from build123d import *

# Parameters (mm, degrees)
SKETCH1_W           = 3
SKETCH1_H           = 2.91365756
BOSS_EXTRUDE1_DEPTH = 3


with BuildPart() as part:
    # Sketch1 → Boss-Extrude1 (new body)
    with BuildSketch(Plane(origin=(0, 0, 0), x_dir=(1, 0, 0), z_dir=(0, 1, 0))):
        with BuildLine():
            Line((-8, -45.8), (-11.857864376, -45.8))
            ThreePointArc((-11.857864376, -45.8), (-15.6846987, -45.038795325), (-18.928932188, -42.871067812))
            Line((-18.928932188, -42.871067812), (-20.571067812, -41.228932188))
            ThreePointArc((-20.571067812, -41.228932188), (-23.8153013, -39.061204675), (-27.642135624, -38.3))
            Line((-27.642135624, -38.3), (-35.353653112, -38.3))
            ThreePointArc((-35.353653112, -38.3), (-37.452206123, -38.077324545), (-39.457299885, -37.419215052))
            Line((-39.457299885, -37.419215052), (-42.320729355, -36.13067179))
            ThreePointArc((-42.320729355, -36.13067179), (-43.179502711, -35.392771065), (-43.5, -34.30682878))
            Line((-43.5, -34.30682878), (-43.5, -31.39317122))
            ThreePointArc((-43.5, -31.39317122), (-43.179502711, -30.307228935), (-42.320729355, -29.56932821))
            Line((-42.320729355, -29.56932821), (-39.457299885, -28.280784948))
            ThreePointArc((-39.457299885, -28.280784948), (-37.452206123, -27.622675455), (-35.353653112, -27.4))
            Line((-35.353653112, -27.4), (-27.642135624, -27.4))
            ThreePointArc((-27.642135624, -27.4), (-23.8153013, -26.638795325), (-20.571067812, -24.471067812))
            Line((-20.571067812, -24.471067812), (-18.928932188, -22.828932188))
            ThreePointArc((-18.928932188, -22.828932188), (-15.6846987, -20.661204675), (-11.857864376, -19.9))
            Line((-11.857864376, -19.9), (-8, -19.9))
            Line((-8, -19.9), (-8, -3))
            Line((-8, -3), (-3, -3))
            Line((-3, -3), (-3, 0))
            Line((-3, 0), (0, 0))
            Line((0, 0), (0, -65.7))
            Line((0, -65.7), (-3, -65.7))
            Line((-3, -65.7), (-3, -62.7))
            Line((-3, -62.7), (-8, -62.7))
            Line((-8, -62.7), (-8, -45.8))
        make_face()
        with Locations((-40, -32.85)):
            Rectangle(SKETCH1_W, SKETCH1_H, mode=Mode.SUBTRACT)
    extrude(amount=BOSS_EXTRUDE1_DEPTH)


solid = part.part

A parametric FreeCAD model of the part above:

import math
import FreeCAD as App
import Part
import Sketcher
Q = App.Units.Quantity


def add_polygon(sketch, points):
    """Adds a closed chain of lines whose ends are joined by coincident constraints."""
    first, n = sketch.GeometryCount, len(points)
    for a, b in zip(points, points[1:] + points[:1]):
        sketch.addGeometry(Part.LineSegment(App.Vector(*a, 0), App.Vector(*b, 0)), False)
    for i in range(n):
        sketch.addConstraint(Sketcher.Constraint("Coincident", first + i, 2, first + (i + 1) % n, 1))

doc = App.newDocument("Part")
body = doc.addObject("PartDesign::Body", "Body")

# Sketch on XZ plane
sketch1 = doc.addObject("Sketcher::SketchObject", "Sketch")
body.addObject(sketch1)
sketch1.AttachmentSupport = (doc.XZ_Plane, [""])
sketch1.MapMode = "FlatFace"
sketch1.addGeometry(Part.LineSegment(App.Vector(-11.857864, 45.8, 0), App.Vector(-8, 45.8, 0)), False)  # 0
sketch1.addGeometry(Part.LineSegment(App.Vector(-8, 45.8, 0), App.Vector(-8, 62.7, 0)), False)  # 1
sketch1.addGeometry(Part.LineSegment(App.Vector(-8, 62.7, 0), App.Vector(-3, 62.7, 0)), False)  # 2
sketch1.addGeometry(Part.LineSegment(App.Vector(-3, 62.7, 0), App.Vector(-3, 65.7, 0)), False)  # 3
sketch1.addGeometry(Part.LineSegment(App.Vector(-3, 65.7, 0), App.Vector(0, 65.7, 0)), False)  # 4
sketch1.addGeometry(Part.LineSegment(App.Vector(0, 65.7, 0), App.Vector(0, 0, 0)), False)  # 5
sketch1.addGeometry(Part.LineSegment(App.Vector(0, 0, 0), App.Vector(-3, 0, 0)), False)  # 6
sketch1.addGeometry(Part.LineSegment(App.Vector(-3, 0, 0), App.Vector(-3, 3, 0)), False)  # 7
sketch1.addGeometry(Part.LineSegment(App.Vector(-3, 3, 0), App.Vector(-8, 3, 0)), False)  # 8
sketch1.addGeometry(Part.LineSegment(App.Vector(-8, 3, 0), App.Vector(-8, 19.9, 0)), False)  # 9
sketch1.addGeometry(Part.LineSegment(App.Vector(-8, 19.9, 0), App.Vector(-11.857864, 19.9, 0)), False)  # 10
sketch1.addGeometry(Part.ArcOfCircle(Part.Circle(App.Vector(-11.857864, 29.9, 0), App.Vector(0, 0, 1), 10), math.radians(-135), math.radians(-90)), False)  # 11
sketch1.addGeometry(Part.LineSegment(App.Vector(-18.928932, 22.828932, 0), App.Vector(-20.571068, 24.471068, 0)), False)  # 12
sketch1.addGeometry(Part.ArcOfCircle(Part.Circle(App.Vector(-27.642136, 17.4, 0), App.Vector(0, 0, 1), 10), math.radians(45), math.radians(90)), False)  # 13
sketch1.addGeometry(Part.LineSegment(App.Vector(-27.642136, 27.4, 0), App.Vector(-35.353653, 27.4, 0)), False)  # 14
sketch1.addGeometry(Part.ArcOfCircle(Part.Circle(App.Vector(-35.353653, 37.4, 0), App.Vector(0, 0, 1), 10), math.radians(-114.227745), math.radians(-90)), False)  # 15
sketch1.addGeometry(Part.LineSegment(App.Vector(-39.4573, 28.280785, 0), App.Vector(-42.320729, 29.569328, 0)), False)  # 16
sketch1.addGeometry(Part.ArcOfCircle(Part.Circle(App.Vector(-41.5, 31.393171, 0), App.Vector(0, 0, 1), 2), math.radians(180), math.radians(245.772255)), False)  # 17
sketch1.addGeometry(Part.LineSegment(App.Vector(-43.5, 31.393171, 0), App.Vector(-43.5, 34.306829, 0)), False)  # 18
sketch1.addGeometry(Part.ArcOfCircle(Part.Circle(App.Vector(-41.5, 34.306829, 0), App.Vector(0, 0, 1), 2), math.radians(114.227745), math.radians(180)), False)  # 19
sketch1.addGeometry(Part.LineSegment(App.Vector(-42.320729, 36.130672, 0), App.Vector(-39.4573, 37.419215, 0)), False)  # 20
sketch1.addGeometry(Part.ArcOfCircle(Part.Circle(App.Vector(-35.353653, 28.3, 0), App.Vector(0, 0, 1), 10), math.radians(90), math.radians(114.227745)), False)  # 21
sketch1.addGeometry(Part.LineSegment(App.Vector(-35.353653, 38.3, 0), App.Vector(-27.642136, 38.3, 0)), False)  # 22
sketch1.addGeometry(Part.ArcOfCircle(Part.Circle(App.Vector(-27.642136, 48.3, 0), App.Vector(0, 0, 1), 10), math.radians(-90), math.radians(-45)), False)  # 23
sketch1.addGeometry(Part.LineSegment(App.Vector(-20.571068, 41.228932, 0), App.Vector(-18.928932, 42.871068, 0)), False)  # 24
sketch1.addGeometry(Part.ArcOfCircle(Part.Circle(App.Vector(-11.857864, 35.8, 0), App.Vector(0, 0, 1), 10), math.radians(90), math.radians(135)), False)  # 25
add_polygon(sketch1, [(-41.5, 34.306829), (-41.5, 31.393171), (-38.5, 31.393171), (-38.5, 34.306829)])  # lines 26-29
sketch1.addConstraint([
    Sketcher.Constraint("Coincident", 0, 2, 1, 1),
    Sketcher.Constraint("Coincident", 1, 2, 2, 1),
    Sketcher.Constraint("Coincident", 2, 2, 3, 1),
    Sketcher.Constraint("Coincident", 3, 2, 4, 1),
    Sketcher.Constraint("Coincident", 4, 2, 5, 1),
    Sketcher.Constraint("Coincident", 5, 2, 6, 1),
    Sketcher.Constraint("Coincident", 6, 2, 7, 1),
    Sketcher.Constraint("Coincident", 7, 2, 8, 1),
    Sketcher.Constraint("Coincident", 8, 2, 9, 1),
    Sketcher.Constraint("Coincident", 9, 2, 10, 1),
    Sketcher.Constraint("Tangent", 10, 2, 11, 2),
    Sketcher.Constraint("Tangent", 11, 1, 12, 1),
    Sketcher.Constraint("Tangent", 12, 2, 13, 1),
    Sketcher.Constraint("Tangent", 13, 2, 14, 1),
    Sketcher.Constraint("Tangent", 14, 2, 15, 2),
    Sketcher.Constraint("Tangent", 15, 1, 16, 1),
    Sketcher.Constraint("Tangent", 16, 2, 17, 2),
    Sketcher.Constraint("Tangent", 17, 1, 18, 1),
    Sketcher.Constraint("Tangent", 18, 2, 19, 2),
    Sketcher.Constraint("Tangent", 19, 1, 20, 1),
    Sketcher.Constraint("Tangent", 20, 2, 21, 2),
    Sketcher.Constraint("Tangent", 21, 1, 22, 1),
    Sketcher.Constraint("Tangent", 22, 2, 23, 1),
    Sketcher.Constraint("Tangent", 23, 2, 24, 1),
    Sketcher.Constraint("Tangent", 24, 2, 25, 2),
    Sketcher.Constraint("Tangent", 25, 1, 0, 1),
    Sketcher.Constraint("Horizontal", 0),
    Sketcher.Constraint("Vertical", 1),
    Sketcher.Constraint("Horizontal", 2),
    Sketcher.Constraint("Vertical", 3),
    Sketcher.Constraint("Horizontal", 4),
    Sketcher.Constraint("Vertical", 5),
    Sketcher.Constraint("Horizontal", 6),
    Sketcher.Constraint("Vertical", 7),
    Sketcher.Constraint("Horizontal", 8),
    Sketcher.Constraint("Vertical", 9),
    Sketcher.Constraint("Horizontal", 10),
    Sketcher.Constraint("Horizontal", 14),
    Sketcher.Constraint("Vertical", 18),
    Sketcher.Constraint("Horizontal", 22),
    Sketcher.Constraint("Vertical", 26),
    Sketcher.Constraint("Horizontal", 27),
    Sketcher.Constraint("Vertical", 28),
    Sketcher.Constraint("Horizontal", 29),
    Sketcher.Constraint("Coincident", 5, 2, -1, 1),
    Sketcher.Constraint("Coincident", 26, 2, 17, 3),
    Sketcher.Constraint("Coincident", 29, 2, 19, 3),
    Sketcher.Constraint("Equal", 11, 13),
    Sketcher.Constraint("Equal", 13, 15),
    Sketcher.Constraint("Equal", 15, 21),
    Sketcher.Constraint("Equal", 21, 23),
    Sketcher.Constraint("Equal", 23, 25),
    Sketcher.Constraint("Perpendicular", 12, 24),
    Sketcher.Constraint("Vertical", 15, 3, 21, 3),
    Sketcher.Constraint("Vertical", 13, 3, 23, 3),
    Sketcher.Constraint("Vertical", 11, 3, 25, 3),
    Sketcher.Constraint("Vertical", 3, 2, 6, 2),
    Sketcher.Constraint("Vertical", 1, 2, 8, 2),
    Sketcher.Constraint("Vertical", 16, 2, 19, 1),
    Sketcher.Constraint("Vertical", 12, 2, 23, 2),
    Sketcher.Constraint("Equal", 6, 27),
    Sketcher.Constraint("Equal", 29, 3),
    Sketcher.Constraint("Equal", 3, 7),
    Sketcher.Constraint("Equal", 1, 9),
    Sketcher.Constraint("Radius", 11, Q("10 mm")),
    Sketcher.Constraint("Radius", 17, Q("2 mm")),
    Sketcher.Constraint("DistanceX", 2, 1, 2, 2, Q("5 mm")),
    Sketcher.Constraint("DistanceX", 4, 1, 4, 2, Q("3 mm")),
    Sketcher.Constraint("DistanceY", 1, 1, 1, 2, Q("16.9 mm")),
    Sketcher.Constraint("DistanceY", 5, 2, 5, 1, Q("65.7 mm")),
    Sketcher.Constraint("DistanceY", -1, 1, 13, 3, Q("17.4 mm")),
    Sketcher.Constraint("DistanceX", 17, 3, -1, 1, Q("41.5 mm")),
    Sketcher.Constraint("DistanceX", 15, 1, -1, 1, Q("39.4573 mm")),
    Sketcher.Constraint("DistanceY", 16, 2, 19, 3, Q("4.737501 mm")),
    Sketcher.Constraint("DistanceX", 0, 1, 0, 2, Q("3.857864 mm")),
])
pad1 = doc.addObject("PartDesign::Pad", "Pad")
body.addObject(pad1)
pad1.Profile = sketch1
pad1.Length = 3
pad1.Reversed = True

doc.recompute()
